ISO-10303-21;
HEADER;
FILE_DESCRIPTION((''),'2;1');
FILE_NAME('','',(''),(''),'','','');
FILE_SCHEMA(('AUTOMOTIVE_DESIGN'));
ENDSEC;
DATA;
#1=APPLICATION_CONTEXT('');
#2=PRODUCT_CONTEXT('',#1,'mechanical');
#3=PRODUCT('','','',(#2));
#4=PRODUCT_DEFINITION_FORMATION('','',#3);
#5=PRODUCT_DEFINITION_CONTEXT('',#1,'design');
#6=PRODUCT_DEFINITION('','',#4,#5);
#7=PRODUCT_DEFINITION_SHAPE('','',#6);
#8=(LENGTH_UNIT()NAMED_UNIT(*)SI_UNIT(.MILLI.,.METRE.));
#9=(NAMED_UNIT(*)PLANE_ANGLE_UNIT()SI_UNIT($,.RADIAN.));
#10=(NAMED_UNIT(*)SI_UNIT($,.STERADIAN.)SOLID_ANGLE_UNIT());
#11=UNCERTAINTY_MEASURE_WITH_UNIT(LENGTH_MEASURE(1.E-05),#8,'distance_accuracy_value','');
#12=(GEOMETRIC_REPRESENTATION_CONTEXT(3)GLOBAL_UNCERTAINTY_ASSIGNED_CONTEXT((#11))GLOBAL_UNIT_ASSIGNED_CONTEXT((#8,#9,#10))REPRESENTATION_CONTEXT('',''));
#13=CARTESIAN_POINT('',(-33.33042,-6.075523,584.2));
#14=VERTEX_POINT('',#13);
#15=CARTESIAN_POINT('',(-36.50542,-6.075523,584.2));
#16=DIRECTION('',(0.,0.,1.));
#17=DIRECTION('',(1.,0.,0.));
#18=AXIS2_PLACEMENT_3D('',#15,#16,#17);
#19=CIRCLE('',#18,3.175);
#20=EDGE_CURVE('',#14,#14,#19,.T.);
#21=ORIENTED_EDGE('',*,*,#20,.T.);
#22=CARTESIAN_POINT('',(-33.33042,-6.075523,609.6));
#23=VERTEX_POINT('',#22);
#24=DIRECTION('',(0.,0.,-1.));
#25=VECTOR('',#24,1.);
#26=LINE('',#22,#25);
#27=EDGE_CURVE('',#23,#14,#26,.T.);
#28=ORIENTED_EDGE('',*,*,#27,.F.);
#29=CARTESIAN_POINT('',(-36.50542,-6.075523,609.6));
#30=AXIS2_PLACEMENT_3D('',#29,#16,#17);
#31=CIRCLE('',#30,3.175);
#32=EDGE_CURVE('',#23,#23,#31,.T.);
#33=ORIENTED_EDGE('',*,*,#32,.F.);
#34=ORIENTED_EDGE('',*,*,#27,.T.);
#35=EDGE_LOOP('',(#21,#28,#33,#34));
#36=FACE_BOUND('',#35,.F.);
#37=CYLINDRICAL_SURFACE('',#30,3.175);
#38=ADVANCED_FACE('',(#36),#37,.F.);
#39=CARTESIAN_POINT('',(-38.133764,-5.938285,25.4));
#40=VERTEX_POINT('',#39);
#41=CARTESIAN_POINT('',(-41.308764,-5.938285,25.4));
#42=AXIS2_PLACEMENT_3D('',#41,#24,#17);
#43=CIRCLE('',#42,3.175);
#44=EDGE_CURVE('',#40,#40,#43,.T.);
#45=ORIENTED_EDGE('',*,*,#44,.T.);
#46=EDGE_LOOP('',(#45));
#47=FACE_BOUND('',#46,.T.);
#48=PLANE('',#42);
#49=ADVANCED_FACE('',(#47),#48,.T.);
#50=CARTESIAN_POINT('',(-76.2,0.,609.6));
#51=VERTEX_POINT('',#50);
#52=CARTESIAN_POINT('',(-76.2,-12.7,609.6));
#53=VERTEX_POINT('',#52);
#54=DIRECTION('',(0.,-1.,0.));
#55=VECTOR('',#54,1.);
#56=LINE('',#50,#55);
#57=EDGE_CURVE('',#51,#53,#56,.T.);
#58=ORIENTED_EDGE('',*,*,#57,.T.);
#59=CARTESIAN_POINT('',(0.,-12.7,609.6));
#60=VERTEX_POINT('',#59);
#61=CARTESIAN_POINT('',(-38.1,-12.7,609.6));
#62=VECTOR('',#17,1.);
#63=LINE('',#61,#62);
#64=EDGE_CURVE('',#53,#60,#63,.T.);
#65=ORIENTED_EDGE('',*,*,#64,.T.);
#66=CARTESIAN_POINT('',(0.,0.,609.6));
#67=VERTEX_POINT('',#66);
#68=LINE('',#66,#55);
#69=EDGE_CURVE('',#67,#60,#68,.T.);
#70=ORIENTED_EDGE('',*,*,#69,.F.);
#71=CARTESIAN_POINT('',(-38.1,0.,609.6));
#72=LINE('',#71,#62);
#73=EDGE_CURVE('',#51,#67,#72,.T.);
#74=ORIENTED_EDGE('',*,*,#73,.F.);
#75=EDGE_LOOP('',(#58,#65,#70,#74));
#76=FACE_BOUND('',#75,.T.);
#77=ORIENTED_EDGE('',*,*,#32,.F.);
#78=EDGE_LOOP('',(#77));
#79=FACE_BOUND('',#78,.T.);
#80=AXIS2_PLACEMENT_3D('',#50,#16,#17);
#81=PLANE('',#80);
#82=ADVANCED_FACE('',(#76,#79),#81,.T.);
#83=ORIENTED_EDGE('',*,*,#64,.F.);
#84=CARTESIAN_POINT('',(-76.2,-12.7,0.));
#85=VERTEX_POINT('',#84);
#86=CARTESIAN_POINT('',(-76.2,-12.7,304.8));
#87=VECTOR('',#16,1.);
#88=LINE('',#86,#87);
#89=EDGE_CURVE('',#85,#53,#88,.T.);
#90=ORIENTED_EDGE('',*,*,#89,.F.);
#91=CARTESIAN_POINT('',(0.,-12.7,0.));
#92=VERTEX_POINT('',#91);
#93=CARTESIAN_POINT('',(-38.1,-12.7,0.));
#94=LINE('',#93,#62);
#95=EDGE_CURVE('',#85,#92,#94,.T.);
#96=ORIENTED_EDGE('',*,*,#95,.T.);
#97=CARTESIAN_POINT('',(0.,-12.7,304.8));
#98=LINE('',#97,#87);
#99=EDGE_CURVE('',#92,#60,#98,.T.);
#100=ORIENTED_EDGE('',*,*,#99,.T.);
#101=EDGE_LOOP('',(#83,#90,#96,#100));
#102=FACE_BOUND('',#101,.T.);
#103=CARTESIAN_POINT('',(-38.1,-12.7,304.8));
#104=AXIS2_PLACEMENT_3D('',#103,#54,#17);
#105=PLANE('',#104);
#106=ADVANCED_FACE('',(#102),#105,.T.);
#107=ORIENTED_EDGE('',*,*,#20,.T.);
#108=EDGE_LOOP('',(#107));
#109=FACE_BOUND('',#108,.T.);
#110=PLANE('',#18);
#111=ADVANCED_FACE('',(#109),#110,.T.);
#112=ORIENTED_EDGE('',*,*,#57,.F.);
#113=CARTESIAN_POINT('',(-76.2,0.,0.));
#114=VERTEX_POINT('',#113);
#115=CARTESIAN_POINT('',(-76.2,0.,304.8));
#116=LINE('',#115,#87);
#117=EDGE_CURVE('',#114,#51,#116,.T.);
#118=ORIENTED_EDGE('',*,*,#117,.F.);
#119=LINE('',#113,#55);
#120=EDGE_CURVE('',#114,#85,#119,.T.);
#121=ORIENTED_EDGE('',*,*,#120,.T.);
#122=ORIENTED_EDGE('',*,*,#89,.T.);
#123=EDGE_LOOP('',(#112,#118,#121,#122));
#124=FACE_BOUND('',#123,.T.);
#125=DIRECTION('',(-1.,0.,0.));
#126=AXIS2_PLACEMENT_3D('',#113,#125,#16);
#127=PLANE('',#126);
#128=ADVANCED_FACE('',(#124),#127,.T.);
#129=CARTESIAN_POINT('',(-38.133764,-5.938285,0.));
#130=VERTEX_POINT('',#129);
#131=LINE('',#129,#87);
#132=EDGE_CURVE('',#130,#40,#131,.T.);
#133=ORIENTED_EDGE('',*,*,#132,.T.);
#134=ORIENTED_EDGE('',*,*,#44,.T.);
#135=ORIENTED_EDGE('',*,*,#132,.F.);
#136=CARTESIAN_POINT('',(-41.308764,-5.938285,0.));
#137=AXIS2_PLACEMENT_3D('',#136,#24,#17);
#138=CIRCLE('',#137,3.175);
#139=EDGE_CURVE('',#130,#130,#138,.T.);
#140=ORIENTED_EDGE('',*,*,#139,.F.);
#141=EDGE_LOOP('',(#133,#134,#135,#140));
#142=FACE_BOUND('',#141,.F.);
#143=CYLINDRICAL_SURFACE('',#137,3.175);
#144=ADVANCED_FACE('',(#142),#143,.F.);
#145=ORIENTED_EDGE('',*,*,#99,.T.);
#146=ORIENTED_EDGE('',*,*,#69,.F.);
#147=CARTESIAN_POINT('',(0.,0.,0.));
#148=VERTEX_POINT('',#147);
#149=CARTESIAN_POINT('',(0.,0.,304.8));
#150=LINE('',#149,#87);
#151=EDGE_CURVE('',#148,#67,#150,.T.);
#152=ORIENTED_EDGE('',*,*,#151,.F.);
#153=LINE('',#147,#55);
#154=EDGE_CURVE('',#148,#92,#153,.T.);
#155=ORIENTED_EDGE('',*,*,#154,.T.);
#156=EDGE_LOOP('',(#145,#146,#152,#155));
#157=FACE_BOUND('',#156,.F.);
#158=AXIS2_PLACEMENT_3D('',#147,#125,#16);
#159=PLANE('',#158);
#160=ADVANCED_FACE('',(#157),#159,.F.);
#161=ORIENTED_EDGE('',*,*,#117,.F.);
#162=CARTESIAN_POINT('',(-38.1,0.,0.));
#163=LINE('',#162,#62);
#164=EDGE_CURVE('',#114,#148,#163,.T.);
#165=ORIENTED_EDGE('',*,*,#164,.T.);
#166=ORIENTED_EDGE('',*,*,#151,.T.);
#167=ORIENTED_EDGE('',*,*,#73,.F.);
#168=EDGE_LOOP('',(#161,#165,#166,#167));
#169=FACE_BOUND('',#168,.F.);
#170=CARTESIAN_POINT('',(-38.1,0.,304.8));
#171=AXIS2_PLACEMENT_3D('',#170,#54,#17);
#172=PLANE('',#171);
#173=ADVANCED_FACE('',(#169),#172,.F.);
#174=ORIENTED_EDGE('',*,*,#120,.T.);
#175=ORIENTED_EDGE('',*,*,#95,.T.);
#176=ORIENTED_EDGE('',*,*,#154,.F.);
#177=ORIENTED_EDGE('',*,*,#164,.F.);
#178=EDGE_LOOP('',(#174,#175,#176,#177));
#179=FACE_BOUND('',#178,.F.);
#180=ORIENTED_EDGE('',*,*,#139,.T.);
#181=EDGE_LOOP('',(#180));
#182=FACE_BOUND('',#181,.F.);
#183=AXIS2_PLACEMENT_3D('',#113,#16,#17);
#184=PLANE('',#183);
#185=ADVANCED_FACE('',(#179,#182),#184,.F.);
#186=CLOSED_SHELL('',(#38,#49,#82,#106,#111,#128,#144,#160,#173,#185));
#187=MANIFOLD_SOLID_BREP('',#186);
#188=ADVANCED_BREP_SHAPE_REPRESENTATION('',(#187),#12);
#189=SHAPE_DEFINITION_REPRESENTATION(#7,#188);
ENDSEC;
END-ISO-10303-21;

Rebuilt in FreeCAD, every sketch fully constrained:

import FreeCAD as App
import Part
import Sketcher
Q = App.Units.Quantity


def add_polygon(sketch, points):
    """Adds a closed chain of lines whose ends are joined by coincident constraints."""
    first, n = sketch.GeometryCount, len(points)
    for a, b in zip(points, points[1:] + points[:1]):
        sketch.addGeometry(Part.LineSegment(App.Vector(*a, 0), App.Vector(*b, 0)), False)
    for i in range(n):
        sketch.addConstraint(Sketcher.Constraint("Coincident", first + i, 2, first + (i + 1) % n, 1))

doc = App.newDocument("Part")
body = doc.addObject("PartDesign::Body", "Body")

# Sketch on XZ plane
sketch1 = body.newObject("Sketcher::SketchObject", "Sketch")
sketch1.AttachmentSupport = (doc.getObject("XZ_Plane"), [""])
sketch1.MapMode = "FlatFace"
add_polygon(sketch1, [(-76, 610), (-76, 0), (0, 0), (0, 610)])  # lines 0-3
sketch1.addConstraint(Sketcher.Constraint("Vertical", 0))
sketch1.addConstraint(Sketcher.Constraint("Horizontal", 1))
sketch1.addConstraint(Sketcher.Constraint("Vertical", 2))
sketch1.addConstraint(Sketcher.Constraint("Horizontal", 3))
sketch1.addConstraint(Sketcher.Constraint("Coincident", 1, 2, -1, 1))
sketch1.addConstraint(Sketcher.Constraint("DistanceX", 1, 1, 1, 2, Q("3 in")))
sketch1.addConstraint(Sketcher.Constraint("DistanceY", 0, 2, 0, 1, Q("24 in")))
pad1 = body.newObject("PartDesign::Pad", "Pad")
pad1.Profile = sketch1
pad1.Length = Q("0.5 in")

# Sketch on XY plane
sketch2 = body.newObject("Sketcher::SketchObject", "Sketch001")
sketch2.AttachmentSupport = (doc.getObject("XY_Plane"), [""])
sketch2.MapMode = "FlatFace"
sketch2.addGeometry(Part.Circle(App.Vector(-41.3, -5.9, 0), App.Vector(0, 0, 1), 3.2), False)
sketch2.addConstraint(Sketcher.Constraint("Diameter", 0, Q("0.25 in")))
sketch2.addConstraint(Sketcher.Constraint("DistanceX", 0, 3, -1, 1, Q("41.308764 mm")))
sketch2.addConstraint(Sketcher.Constraint("DistanceY", 0, 3, -1, 1, Q("5.938285 mm")))
pocket1 = body.newObject("PartDesign::Pocket", "Pocket")
pocket1.Profile = sketch2
pocket1.Length = Q("1 in")
pocket1.Reversed = True

# Sketch on XY plane
sketch3 = body.newObject("Sketcher::SketchObject", "Sketch002")
sketch3.AttachmentSupport = (doc.getObject("XY_Plane"), [""])
sketch3.MapMode = "FlatFace"
sketch3.AttachmentOffset = App.Placement(App.Vector(0, 0, 24 * 25.4), App.Rotation())
sketch3.addGeometry(Part.Circle(App.Vector(-36.5, -6.1, 0), App.Vector(0, 0, 1), 3.2), False)
sketch3.addConstraint(Sketcher.Constraint("Diameter", 0, Q("0.25 in")))
sketch3.addConstraint(Sketcher.Constraint("DistanceX", 0, 3, -1, 1, Q("36.50542 mm")))
sketch3.addConstraint(Sketcher.Constraint("DistanceY", 0, 3, -1, 1, Q("6.075523 mm")))
pocket2 = body.newObject("PartDesign::Pocket", "Pocket001")
pocket2.Profile = sketch3
pocket2.Length = Q("1 in")

doc.recompute()
